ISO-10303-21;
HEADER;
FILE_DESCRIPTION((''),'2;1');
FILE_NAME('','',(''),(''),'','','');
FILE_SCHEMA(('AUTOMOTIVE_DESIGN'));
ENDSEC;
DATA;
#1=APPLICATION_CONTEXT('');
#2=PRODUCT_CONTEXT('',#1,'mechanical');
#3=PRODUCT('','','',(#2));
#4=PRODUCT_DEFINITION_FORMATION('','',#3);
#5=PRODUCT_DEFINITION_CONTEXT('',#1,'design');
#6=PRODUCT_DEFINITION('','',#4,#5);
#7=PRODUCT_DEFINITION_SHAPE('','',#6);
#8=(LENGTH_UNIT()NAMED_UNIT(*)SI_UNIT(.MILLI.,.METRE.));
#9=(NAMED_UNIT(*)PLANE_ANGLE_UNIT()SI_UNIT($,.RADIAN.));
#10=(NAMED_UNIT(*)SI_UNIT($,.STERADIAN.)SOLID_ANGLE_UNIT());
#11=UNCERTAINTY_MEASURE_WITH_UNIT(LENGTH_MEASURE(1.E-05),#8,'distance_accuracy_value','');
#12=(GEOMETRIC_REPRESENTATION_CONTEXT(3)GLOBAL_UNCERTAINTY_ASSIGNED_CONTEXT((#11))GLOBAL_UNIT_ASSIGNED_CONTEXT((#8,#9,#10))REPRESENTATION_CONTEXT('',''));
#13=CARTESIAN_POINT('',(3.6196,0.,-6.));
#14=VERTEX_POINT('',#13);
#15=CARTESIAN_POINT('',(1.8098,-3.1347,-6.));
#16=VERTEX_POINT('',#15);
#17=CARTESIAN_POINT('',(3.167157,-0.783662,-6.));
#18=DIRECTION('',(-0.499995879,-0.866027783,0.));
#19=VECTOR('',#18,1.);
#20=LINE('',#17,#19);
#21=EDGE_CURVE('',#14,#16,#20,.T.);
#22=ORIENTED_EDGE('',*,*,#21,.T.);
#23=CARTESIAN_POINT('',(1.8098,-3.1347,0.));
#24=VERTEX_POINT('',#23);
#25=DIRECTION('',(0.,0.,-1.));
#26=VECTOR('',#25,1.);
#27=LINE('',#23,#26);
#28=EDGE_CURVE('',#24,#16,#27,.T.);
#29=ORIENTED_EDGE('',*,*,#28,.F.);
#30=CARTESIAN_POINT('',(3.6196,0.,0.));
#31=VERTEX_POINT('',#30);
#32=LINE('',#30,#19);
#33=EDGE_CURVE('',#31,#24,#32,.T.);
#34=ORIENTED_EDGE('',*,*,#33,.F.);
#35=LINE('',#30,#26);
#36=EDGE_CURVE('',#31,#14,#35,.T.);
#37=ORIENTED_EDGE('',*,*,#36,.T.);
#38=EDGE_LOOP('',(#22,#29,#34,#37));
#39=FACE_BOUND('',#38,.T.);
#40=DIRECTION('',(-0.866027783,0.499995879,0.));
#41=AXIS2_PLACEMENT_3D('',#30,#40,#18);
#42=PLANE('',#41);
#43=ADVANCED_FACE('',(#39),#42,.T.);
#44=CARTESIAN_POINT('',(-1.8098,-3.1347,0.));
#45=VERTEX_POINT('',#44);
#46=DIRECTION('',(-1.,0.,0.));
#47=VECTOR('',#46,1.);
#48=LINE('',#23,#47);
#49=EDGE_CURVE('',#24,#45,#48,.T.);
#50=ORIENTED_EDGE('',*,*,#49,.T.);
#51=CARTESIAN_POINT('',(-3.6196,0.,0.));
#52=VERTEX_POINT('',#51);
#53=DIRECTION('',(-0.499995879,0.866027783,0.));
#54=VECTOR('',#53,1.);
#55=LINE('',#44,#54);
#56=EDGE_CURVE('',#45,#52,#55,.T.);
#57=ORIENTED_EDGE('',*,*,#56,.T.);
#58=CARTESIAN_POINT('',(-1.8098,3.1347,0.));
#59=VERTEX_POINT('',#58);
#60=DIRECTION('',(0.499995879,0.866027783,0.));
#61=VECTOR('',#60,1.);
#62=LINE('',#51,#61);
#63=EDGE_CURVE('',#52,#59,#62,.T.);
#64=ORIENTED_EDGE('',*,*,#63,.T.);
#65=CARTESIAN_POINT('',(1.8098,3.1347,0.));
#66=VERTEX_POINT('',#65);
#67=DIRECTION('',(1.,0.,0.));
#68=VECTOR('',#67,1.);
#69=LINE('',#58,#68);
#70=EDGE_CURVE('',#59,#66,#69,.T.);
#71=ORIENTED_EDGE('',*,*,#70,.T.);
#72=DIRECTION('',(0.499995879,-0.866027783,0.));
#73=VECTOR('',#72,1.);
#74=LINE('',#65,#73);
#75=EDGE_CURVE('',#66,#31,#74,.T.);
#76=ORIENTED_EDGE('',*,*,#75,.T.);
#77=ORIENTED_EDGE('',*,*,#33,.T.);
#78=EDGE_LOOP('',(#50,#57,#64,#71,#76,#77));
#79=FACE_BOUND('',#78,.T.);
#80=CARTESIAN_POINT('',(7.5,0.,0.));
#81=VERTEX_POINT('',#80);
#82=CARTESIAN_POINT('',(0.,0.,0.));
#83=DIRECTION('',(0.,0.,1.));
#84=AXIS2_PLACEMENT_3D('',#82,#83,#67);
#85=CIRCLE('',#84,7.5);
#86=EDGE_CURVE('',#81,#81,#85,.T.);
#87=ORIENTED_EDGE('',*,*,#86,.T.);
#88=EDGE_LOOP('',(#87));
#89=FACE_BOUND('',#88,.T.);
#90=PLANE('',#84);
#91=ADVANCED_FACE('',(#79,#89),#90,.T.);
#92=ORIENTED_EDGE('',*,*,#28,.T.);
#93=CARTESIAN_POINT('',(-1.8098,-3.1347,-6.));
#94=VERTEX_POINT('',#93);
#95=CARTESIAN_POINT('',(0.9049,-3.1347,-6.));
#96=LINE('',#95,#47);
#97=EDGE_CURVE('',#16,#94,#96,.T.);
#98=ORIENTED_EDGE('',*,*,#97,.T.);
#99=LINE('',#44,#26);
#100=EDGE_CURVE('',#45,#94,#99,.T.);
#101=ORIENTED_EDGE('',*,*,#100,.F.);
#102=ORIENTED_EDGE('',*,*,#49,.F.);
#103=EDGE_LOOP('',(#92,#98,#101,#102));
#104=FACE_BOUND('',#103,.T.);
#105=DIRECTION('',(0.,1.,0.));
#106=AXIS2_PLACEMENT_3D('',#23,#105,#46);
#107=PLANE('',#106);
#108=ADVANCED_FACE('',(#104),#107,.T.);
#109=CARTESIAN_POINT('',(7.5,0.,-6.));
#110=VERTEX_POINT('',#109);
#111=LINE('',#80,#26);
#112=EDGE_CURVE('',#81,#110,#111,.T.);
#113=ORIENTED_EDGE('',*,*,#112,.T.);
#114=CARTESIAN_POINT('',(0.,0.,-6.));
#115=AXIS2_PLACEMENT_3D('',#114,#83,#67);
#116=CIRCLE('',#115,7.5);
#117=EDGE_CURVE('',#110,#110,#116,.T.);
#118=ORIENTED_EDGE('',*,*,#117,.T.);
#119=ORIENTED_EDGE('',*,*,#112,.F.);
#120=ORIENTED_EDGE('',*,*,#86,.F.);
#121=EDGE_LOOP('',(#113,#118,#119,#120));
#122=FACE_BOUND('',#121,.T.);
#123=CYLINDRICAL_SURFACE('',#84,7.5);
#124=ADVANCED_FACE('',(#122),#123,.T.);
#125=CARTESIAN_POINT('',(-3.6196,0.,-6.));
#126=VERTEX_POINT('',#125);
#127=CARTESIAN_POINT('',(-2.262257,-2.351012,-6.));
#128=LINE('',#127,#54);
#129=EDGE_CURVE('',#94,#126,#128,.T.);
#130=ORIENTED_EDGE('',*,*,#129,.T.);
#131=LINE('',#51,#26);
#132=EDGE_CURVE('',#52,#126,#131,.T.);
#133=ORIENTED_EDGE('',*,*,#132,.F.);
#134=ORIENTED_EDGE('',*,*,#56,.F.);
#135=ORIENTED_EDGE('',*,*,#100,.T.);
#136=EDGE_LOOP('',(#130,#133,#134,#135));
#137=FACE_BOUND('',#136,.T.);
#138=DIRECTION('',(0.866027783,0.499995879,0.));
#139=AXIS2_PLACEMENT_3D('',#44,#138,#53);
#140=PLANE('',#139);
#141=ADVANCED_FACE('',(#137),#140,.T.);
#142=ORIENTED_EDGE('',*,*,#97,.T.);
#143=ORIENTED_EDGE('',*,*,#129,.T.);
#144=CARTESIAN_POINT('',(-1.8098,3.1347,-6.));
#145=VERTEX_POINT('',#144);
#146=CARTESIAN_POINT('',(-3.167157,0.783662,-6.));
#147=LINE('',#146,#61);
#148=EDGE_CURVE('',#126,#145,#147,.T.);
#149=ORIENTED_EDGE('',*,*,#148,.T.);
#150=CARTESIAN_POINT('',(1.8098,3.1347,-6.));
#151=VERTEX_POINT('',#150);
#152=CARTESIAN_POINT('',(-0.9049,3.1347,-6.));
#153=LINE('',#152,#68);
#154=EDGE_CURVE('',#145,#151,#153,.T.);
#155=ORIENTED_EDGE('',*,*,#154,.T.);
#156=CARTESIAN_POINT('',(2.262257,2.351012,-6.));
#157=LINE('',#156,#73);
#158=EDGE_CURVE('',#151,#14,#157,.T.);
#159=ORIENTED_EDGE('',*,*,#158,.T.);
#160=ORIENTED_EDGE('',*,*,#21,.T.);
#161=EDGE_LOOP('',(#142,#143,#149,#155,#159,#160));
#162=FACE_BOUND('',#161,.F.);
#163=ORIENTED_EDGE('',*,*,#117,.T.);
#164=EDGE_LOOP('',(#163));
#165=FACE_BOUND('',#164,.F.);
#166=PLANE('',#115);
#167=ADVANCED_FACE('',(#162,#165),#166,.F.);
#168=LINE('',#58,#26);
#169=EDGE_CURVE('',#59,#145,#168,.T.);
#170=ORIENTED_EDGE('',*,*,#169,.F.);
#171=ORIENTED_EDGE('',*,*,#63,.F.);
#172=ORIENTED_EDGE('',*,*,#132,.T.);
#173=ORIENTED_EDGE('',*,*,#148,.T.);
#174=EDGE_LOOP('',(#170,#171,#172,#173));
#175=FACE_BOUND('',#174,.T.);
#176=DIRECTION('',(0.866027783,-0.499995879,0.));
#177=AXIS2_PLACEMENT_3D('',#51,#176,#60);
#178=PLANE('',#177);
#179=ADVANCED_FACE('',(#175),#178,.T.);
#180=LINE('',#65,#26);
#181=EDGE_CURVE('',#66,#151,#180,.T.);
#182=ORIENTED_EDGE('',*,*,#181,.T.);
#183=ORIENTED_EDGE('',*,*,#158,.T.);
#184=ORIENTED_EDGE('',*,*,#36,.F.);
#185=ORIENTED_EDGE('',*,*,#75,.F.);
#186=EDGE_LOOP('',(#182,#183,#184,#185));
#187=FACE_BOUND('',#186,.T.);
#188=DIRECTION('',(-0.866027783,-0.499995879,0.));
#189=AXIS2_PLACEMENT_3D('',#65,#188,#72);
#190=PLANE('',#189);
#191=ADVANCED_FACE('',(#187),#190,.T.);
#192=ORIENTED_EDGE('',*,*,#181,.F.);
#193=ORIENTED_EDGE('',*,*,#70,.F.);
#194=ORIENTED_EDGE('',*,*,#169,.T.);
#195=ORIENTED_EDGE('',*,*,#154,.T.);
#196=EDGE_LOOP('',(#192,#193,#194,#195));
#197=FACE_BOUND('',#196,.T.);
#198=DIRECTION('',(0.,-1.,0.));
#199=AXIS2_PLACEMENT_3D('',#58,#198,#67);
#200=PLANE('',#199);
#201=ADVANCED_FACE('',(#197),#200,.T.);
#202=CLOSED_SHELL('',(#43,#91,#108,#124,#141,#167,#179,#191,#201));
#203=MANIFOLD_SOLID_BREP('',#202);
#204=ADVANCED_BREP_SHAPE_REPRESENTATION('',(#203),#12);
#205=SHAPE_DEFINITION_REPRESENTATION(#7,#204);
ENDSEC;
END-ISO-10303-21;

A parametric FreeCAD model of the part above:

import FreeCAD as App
import Part
import Sketcher
Q = App.Units.Quantity

doc = App.newDocument("Part")
body = doc.addObject("PartDesign::Body", "Body")

sketch1 = body.newObject("Sketcher::SketchObject", "Sketch")
sketch1.AttachmentSupport = (doc.getObject("XY_Plane"), [""])
sketch1.MapMode = "FlatFace"
sketch1.addGeometry(Part.Circle(App.Vector(0, 0, 0), App.Vector(0, 0, 1), 7.5), False)
sketch1.addGeometry(Part.LineSegment(App.Vector(-3.3, 0, 0), App.Vector(-1.7, 2.9, 0)), False)
sketch1.addGeometry(Part.LineSegment(App.Vector(-1.7, 2.9, 0), App.Vector(1.7, 2.9, 0)), False)
sketch1.addGeometry(Part.LineSegment(App.Vector(1.7, 2.9, 0), App.Vector(3.3, 0, 0)), False)
sketch1.addGeometry(Part.LineSegment(App.Vector(3.3, 0, 0), App.Vector(1.7, -2.9, 0)), False)
sketch1.addGeometry(Part.LineSegment(App.Vector(1.7, -2.9, 0), App.Vector(-1.7, -2.9, 0)), False)
sketch1.addGeometry(Part.LineSegment(App.Vector(-1.7, -2.9, 0), App.Vector(-3.3, 0, 0)), False)
sketch1.addConstraint(Sketcher.Constraint("Coincident", 1, 2, 2, 1))
sketch1.addConstraint(Sketcher.Constraint("Coincident", 2, 2, 3, 1))
sketch1.addConstraint(Sketcher.Constraint("Coincident", 3, 2, 4, 1))
sketch1.addConstraint(Sketcher.Constraint("Coincident", 4, 2, 5, 1))
sketch1.addConstraint(Sketcher.Constraint("Coincident", 5, 2, 6, 1))
sketch1.addConstraint(Sketcher.Constraint("Coincident", 6, 2, 1, 1))
sketch1.addConstraint(Sketcher.Constraint("Horizontal", 2))
sketch1.addConstraint(Sketcher.Constraint("Horizontal", 5))
sketch1.addConstraint(Sketcher.Constraint("Coincident", 0, 3, -1, 1))
sketch1.addConstraint(Sketcher.Constraint("Symmetric", 1, 2, 4, 2, -1, 1))
sketch1.addConstraint(Sketcher.Constraint("Symmetric", 3, 2, 6, 2, -1, 1))
sketch1.addConstraint(Sketcher.Constraint("PointOnObject", 3, 2, -1))
sketch1.addConstraint(Sketcher.Constraint("Parallel", 3, 6))
sketch1.addConstraint(Sketcher.Constraint("Vertical", 2, 2, 4, 2))
sketch1.addConstraint(Sketcher.Constraint("Diameter", 0, Q("15 mm")))
sketch1.addConstraint(Sketcher.Constraint("Angle", 1, Q("60.0003 deg")))
sketch1.addConstraint(Sketcher.Constraint("DistanceX", 2, 1, 2, 2, Q("3.3464 mm")))
sketch1.addConstraint(Sketcher.Constraint("DistanceY", -1, 1, 1, 2, Q("2.898 mm")))
pad1 = body.newObject("PartDesign::Pad", "Pad")
pad1.Profile = sketch1
pad1.Length = 6
pad1.Reversed = True

sketch2 = body.newObject("Sketcher::SketchObject", "Sketch001")
sketch2.AttachmentSupport = (doc.getObject("XY_Plane"), [""])
sketch2.MapMode = "FlatFace"
sketch2.addGeometry(Part.LineSegment(App.Vector(1.8, 3.1, 0), App.Vector(-1.8, 3.1, 0)), False)
sketch2.addGeometry(Part.LineSegment(App.Vector(-1.8, 3.1, 0), App.Vector(-3.6, 0, 0)), False)
sketch2.addGeometry(Part.LineSegment(App.Vector(-3.6, 0, 0), App.Vector(-1.8, -3.1, 0)), False)
sketch2.addGeometry(Part.LineSegment(App.Vector(-1.8, -3.1, 0), App.Vector(1.8, -3.1, 0)), False)
sketch2.addGeometry(Part.LineSegment(App.Vector(1.8, -3.1, 0), App.Vector(3.6, 0, 0)), False)
sketch2.addGeometry(Part.LineSegment(App.Vector(3.6, 0, 0), App.Vector(1.8, 3.1, 0)), False)
sketch2.addConstraint(Sketcher.Constraint("Coincident", 0, 2, 1, 1))
sketch2.addConstraint(Sketcher.Constraint("Coincident", 1, 2, 2, 1))
sketch2.addConstraint(Sketcher.Constraint("Coincident", 2, 2, 3, 1))
sketch2.addConstraint(Sketcher.Constraint("Coincident", 3, 2, 4, 1))
sketch2.addConstraint(Sketcher.Constraint("Coincident", 4, 2, 5, 1))
sketch2.addConstraint(Sketcher.Constraint("Coincident", 5, 2, 0, 1))
sketch2.addConstraint(Sketcher.Constraint("Horizontal", 0))
sketch2.addConstraint(Sketcher.Constraint("Horizontal", 3))
sketch2.addConstraint(Sketcher.Constraint("Symmetric", 0, 2, 3, 2, -1, 1))
sketch2.addConstraint(Sketcher.Constraint("Symmetric", 1, 2, 4, 2, -1, 1))
sketch2.addConstraint(Sketcher.Constraint("PointOnObject", 1, 2, -1))
sketch2.addConstraint(Sketcher.Constraint("Parallel", 2, 5))
sketch2.addConstraint(Sketcher.Constraint("Vertical", 0, 2, 2, 2))
sketch2.addConstraint(Sketcher.Constraint("Angle", 1, Q("-119.9997 deg")))
sketch2.addConstraint(Sketcher.Constraint("DistanceX", 0, 2, 0, 1, Q("3.6196 mm")))
sketch2.addConstraint(Sketcher.Constraint("Distance", 1, Q("3.6196 mm")))
pocket1 = body.newObject("PartDesign::Pocket", "Pocket")
pocket1.Profile = sketch2
pocket1.Length = 10

doc.recompute()
